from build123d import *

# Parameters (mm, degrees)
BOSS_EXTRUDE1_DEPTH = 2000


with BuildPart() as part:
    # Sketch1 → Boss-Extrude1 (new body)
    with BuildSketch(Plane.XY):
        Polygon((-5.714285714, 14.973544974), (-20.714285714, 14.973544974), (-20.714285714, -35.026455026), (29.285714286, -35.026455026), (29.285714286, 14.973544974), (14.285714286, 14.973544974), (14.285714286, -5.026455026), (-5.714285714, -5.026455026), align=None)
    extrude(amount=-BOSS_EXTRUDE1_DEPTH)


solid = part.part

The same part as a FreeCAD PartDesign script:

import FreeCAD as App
import Part
import Sketcher
Q = App.Units.Quantity

doc = App.newDocument("Part")
body = doc.addObject("PartDesign::Body", "Body")

# Sketch on XY plane
sketch1 = body.newObject("Sketcher::SketchObject", "Sketch")
sketch1.AttachmentSupport = (doc.getObject("XY_Plane"), [""])
sketch1.MapMode = "FlatFace"
sketch1.addGeometry([
    Part.LineSegment(App.Vector(-6, 15, 0), App.Vector(-21, 15, 0)),  # 0
    Part.LineSegment(App.Vector(-21, 15, 0), App.Vector(-21, -35, 0)),  # 1
    Part.LineSegment(App.Vector(-21, -35, 0), App.Vector(29, -35, 0)),  # 2
    Part.LineSegment(App.Vector(29, -35, 0), App.Vector(29, 15, 0)),  # 3
    Part.LineSegment(App.Vector(29, 15, 0), App.Vector(14, 15, 0)),  # 4
    Part.LineSegment(App.Vector(14, 15, 0), App.Vector(14, -5, 0)),  # 5
    Part.LineSegment(App.Vector(14, -5, 0), App.Vector(-6, -5, 0)),  # 6
    Part.LineSegment(App.Vector(-6, -5, 0), App.Vector(-6, 15, 0)),  # 7
], False)
sketch1.addConstraint([
    Sketcher.Constraint("Coincident", 0, 2, 1, 1),
    Sketcher.Constraint("Coincident", 1, 2, 2, 1),
    Sketcher.Constraint("Coincident", 2, 2, 3, 1),
    Sketcher.Constraint("Coincident", 3, 2, 4, 1),
    Sketcher.Constraint("Coincident", 4, 2, 5, 1),
    Sketcher.Constraint("Coincident", 5, 2, 6, 1),
    Sketcher.Constraint("Coincident", 6, 2, 7, 1),
    Sketcher.Constraint("Coincident", 7, 2, 0, 1),
    Sketcher.Constraint("Horizontal", 0),
    Sketcher.Constraint("Vertical", 1),
    Sketcher.Constraint("Horizontal", 2),
    Sketcher.Constraint("Vertical", 3),
    Sketcher.Constraint("Horizontal", 4),
    Sketcher.Constraint("Vertical", 5),
    Sketcher.Constraint("Horizontal", 6),
    Sketcher.Constraint("Vertical", 7),
    Sketcher.Constraint("Horizontal", 0, 2, 3, 2),
    Sketcher.Constraint("Equal", 0, 4),
    Sketcher.Constraint("Equal", 2, 1),
    Sketcher.Constraint("Equal", 6, 5),
    Sketcher.Constraint("DistanceX", 0, 2, 0, 1, Q("15 mm")),
    Sketcher.Constraint("DistanceX", 2, 1, 2, 2, Q("50 mm")),
    Sketcher.Constraint("DistanceX", 0, 2, -1, 1, Q("20.714286 mm")),
    Sketcher.Constraint("DistanceY", -1, 1, 0, 2, Q("14.973545 mm")),
])
pad1 = body.newObject("PartDesign::Pad", "Pad")
pad1.Profile = sketch1
pad1.Length = 2000
pad1.Reversed = True

doc.recompute()
